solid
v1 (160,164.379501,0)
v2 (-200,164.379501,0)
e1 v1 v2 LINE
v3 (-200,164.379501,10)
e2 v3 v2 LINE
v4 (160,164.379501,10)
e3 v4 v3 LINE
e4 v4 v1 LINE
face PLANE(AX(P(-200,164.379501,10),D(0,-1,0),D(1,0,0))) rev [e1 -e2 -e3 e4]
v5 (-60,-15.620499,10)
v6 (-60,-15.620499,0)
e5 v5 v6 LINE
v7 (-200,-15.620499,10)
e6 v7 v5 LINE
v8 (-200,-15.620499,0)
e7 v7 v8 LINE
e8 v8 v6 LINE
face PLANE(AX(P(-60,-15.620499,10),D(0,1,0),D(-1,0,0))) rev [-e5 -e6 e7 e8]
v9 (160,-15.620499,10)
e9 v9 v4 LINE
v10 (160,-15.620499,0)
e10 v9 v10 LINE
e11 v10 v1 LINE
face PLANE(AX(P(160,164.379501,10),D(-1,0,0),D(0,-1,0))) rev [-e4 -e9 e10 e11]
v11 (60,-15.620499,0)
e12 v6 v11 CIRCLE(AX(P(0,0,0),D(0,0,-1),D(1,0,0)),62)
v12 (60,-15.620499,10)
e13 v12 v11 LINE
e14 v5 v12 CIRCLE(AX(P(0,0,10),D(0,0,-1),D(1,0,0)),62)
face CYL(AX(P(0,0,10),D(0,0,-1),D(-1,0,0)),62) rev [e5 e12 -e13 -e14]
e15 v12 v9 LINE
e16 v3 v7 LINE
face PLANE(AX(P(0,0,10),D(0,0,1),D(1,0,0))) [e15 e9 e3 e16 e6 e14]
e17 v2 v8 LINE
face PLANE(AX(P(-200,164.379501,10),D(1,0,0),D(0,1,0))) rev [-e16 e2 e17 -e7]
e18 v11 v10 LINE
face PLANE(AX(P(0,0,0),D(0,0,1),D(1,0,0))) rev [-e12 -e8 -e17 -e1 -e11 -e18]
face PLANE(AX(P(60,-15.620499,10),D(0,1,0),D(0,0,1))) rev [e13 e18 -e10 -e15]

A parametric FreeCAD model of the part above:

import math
import FreeCAD as App
import Part
import Sketcher

doc = App.newDocument("Part")
body = doc.addObject("PartDesign::Body", "Body")

sketch1 = body.newObject("Sketcher::SketchObject", "Sketch")
sketch1.AttachmentSupport = (doc.getObject("XY_Plane"), [""])
sketch1.MapMode = "FlatFace"
sketch1.addGeometry(Part.LineSegment(App.Vector(-200, 164, 0), App.Vector(-200, -16, 0)), False)
sketch1.addGeometry(Part.LineSegment(App.Vector(-200, -16, 0), App.Vector(-60, -16, 0)), False)
sketch1.addGeometry(Part.ArcOfCircle(Part.Circle(App.Vector(0, 0, 0), App.Vector(0, 0, 1), 62), math.radians(-15), math.radians(195)), False)
sketch1.addGeometry(Part.LineSegment(App.Vector(60, -16, 0), App.Vector(160, -16, 0)), False)
sketch1.addGeometry(Part.LineSegment(App.Vector(160, -16, 0), App.Vector(160, 164, 0)), False)
sketch1.addGeometry(Part.LineSegment(App.Vector(160, 164, 0), App.Vector(-200, 164, 0)), False)
sketch1.addConstraint(Sketcher.Constraint("Coincident", 0, 2, 1, 1))
sketch1.addConstraint(Sketcher.Constraint("Coincident", 1, 2, 2, 2))
sketch1.addConstraint(Sketcher.Constraint("Coincident", 2, 1, 3, 1))
sketch1.addConstraint(Sketcher.Constraint("Coincident", 3, 2, 4, 1))
sketch1.addConstraint(Sketcher.Constraint("Coincident", 4, 2, 5, 1))
sketch1.addConstraint(Sketcher.Constraint("Coincident", 5, 2, 0, 1))
sketch1.addConstraint(Sketcher.Constraint("Vertical", 0))
sketch1.addConstraint(Sketcher.Constraint("Horizontal", 1))
sketch1.addConstraint(Sketcher.Constraint("Horizontal", 3))
sketch1.addConstraint(Sketcher.Constraint("Vertical", 4))
sketch1.addConstraint(Sketcher.Constraint("Horizontal", 5))
sketch1.addConstraint(Sketcher.Constraint("Coincident", 2, 3, -1, 1))
sketch1.addConstraint(Sketcher.Constraint("Horizontal", 1, 2, 2, 1))
sketch1.addConstraint(Sketcher.Constraint("Radius", 2, 62.0))
sketch1.addConstraint(Sketcher.Constraint("DistanceX", 1, 1, 1, 2, 140.0))
sketch1.addConstraint(Sketcher.Constraint("DistanceX", 3, 1, 3, 2, 100.0))
sketch1.addConstraint(Sketcher.Constraint("DistanceX", 5, 2, 5, 1, 360.0))
sketch1.addConstraint(Sketcher.Constraint("DistanceY", 0, 2, 0, 1, 180.0))
pad1 = body.newObject("PartDesign::Pad", "Pad")
pad1.Profile = sketch1
pad1.Length = 10

doc.recompute()
